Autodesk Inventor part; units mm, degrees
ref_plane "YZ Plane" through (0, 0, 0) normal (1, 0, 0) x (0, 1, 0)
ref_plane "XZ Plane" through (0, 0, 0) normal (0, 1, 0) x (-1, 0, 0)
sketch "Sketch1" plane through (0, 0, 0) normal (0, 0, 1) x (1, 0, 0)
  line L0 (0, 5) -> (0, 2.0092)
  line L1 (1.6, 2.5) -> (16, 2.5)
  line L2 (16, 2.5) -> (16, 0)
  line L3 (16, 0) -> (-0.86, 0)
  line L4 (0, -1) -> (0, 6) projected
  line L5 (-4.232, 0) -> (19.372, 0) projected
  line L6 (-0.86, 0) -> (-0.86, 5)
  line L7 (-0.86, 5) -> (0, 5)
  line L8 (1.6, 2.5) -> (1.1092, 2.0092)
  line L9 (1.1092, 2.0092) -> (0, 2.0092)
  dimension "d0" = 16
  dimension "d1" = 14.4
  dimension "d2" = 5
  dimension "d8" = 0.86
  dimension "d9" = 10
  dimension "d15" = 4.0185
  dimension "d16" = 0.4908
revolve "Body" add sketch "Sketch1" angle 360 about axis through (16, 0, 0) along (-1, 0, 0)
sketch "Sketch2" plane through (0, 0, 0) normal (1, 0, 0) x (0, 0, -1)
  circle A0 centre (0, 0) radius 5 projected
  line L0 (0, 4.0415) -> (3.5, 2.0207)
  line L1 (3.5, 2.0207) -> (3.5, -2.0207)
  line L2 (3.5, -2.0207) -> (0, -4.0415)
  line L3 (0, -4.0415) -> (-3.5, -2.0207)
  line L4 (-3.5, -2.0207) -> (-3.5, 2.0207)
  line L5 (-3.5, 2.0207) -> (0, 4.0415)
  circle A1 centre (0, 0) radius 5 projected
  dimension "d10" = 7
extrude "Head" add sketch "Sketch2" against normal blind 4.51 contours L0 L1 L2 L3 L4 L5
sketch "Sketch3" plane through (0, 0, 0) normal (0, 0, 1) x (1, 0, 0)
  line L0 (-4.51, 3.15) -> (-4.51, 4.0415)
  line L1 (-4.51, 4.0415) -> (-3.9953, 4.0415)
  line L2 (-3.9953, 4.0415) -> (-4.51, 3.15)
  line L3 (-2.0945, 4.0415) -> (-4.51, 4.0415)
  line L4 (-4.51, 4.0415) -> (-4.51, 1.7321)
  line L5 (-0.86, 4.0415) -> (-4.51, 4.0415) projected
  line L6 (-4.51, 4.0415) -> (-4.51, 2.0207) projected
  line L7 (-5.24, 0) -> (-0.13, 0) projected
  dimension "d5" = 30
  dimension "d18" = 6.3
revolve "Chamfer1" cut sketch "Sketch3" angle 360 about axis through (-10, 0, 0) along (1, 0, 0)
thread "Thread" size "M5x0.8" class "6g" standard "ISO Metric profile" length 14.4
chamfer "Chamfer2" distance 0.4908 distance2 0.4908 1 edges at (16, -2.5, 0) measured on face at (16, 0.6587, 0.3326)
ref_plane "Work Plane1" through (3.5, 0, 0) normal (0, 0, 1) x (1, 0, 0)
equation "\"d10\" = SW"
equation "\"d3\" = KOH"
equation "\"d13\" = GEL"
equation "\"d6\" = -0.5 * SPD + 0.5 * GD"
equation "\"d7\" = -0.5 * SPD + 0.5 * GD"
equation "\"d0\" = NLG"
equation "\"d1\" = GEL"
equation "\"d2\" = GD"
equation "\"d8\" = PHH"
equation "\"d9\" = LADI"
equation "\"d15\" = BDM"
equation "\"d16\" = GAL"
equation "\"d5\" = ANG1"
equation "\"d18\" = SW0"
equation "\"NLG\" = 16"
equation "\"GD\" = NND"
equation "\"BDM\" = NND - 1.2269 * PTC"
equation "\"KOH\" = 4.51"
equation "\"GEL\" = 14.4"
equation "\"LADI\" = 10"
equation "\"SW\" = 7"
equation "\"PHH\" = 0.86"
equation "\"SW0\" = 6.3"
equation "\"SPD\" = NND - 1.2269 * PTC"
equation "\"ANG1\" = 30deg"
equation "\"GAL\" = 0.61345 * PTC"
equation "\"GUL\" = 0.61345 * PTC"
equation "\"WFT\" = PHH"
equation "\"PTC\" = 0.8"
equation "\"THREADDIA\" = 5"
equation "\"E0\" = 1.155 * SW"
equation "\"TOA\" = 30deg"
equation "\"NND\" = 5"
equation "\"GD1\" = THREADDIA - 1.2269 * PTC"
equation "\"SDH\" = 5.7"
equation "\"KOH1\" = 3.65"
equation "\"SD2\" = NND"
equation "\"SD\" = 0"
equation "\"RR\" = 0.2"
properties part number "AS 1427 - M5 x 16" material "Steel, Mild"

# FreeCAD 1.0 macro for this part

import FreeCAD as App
import Part
import Sketcher

V = App.Vector
Q = App.Units.Quantity


def edges_at(feature, points):
    """Names of the edges that pass closest to the given points."""
    edges = feature.Shape.Edges
    near = lambda p: min(range(len(edges)), key=lambda i: edges[i].distToShape(Part.Vertex(*p))[0])
    return sorted({f"Edge{near(p) + 1}" for p in points})


def add_polygon(sketch, points):
    """Adds a closed chain of lines whose ends are joined by coincident constraints."""
    first, n = sketch.GeometryCount, len(points)
    for a, b in zip(points, points[1:] + points[:1]):
        sketch.addGeometry(Part.LineSegment(App.Vector(*a, 0), App.Vector(*b, 0)), False)
    for i in range(n):
        sketch.addConstraint(Sketcher.Constraint("Coincident", first + i, 2, first + (i + 1) % n, 1))

doc = App.newDocument("Part")
body = doc.addObject("PartDesign::Body", "Body")

sketch1 = body.newObject("Sketcher::SketchObject", "Sketch")
sketch1.AttachmentSupport = (doc.getObject("XY_Plane"), [""])
sketch1.MapMode = "FlatFace"
add_polygon(sketch1, [(0, 2), (0, 5), (-0.9, 5), (-0.9, 0), (16, 0), (16, 2.5), (1.6, 2.5), (1.1, 2)])
sketch1.addConstraint([
    Sketcher.Constraint("Vertical", 0),
    Sketcher.Constraint("Horizontal", 1),
    Sketcher.Constraint("Vertical", 2),
    Sketcher.Constraint("Horizontal", 3),
    Sketcher.Constraint("Vertical", 4),
    Sketcher.Constraint("Horizontal", 5),
    Sketcher.Constraint("Horizontal", 7),
    Sketcher.Constraint("PointOnObject", 0, 2, -2),
    Sketcher.Constraint("PointOnObject", 2, 2, -1),
    Sketcher.Constraint("DistanceY", 2, 2, 2, 1, 5.0),
    Sketcher.Constraint("DistanceX", 5, 2, 5, 1, 14.4),
    Sketcher.Constraint("DistanceX", -1, 1, 3, 2, 16.0),
    Sketcher.Constraint("DistanceX", 1, 2, 1, 1, 0.86),
    Sketcher.Constraint("Angle", 6, Q("-135 deg")),
    Sketcher.Constraint("DistanceY", 4, 1, 4, 2, 2.5),
    Sketcher.Constraint("DistanceX", 6, 2, 5, 2, 0.4908),
])
revolution = body.newObject("PartDesign::Revolution", "Revolution")
revolution.Profile = sketch1
revolution.ReferenceAxis = (sketch1, ["H_Axis"])
revolution.Angle = 360

sketch2 = body.newObject("Sketcher::SketchObject", "Sketch001")
sketch2.AttachmentSupport = (doc.getObject("YZ_Plane"), [""])
sketch2.MapMode = "FlatFace"
add_polygon(sketch2, [(2, -3.5), (4, 0), (2, 3.5), (-2, 3.5), (-4, 0), (-2, -3.5)])
sketch2.addConstraint([
    Sketcher.Constraint("Horizontal", 2),
    Sketcher.Constraint("Horizontal", 5),
    Sketcher.Constraint("Symmetric", 0, 2, 3, 2, -1, 1),
    Sketcher.Constraint("Symmetric", 1, 2, 4, 2, -1, 1),
    Sketcher.Constraint("PointOnObject", 0, 2, -1),
    Sketcher.Constraint("Parallel", 0, 3),
    Sketcher.Constraint("Vertical", 2, 2, 4, 2),
    Sketcher.Constraint("DistanceY", 4, 2, 2, 2, 7.0),
    Sketcher.Constraint("Angle", 0, Q("59.999 deg")),
    Sketcher.Constraint("DistanceX", 2, 2, 2, 1, 4.0414),
])
pad1 = body.newObject("PartDesign::Pad", "Pad")
pad1.Profile = sketch2
pad1.Length = 4.51
pad1.Reversed = True

sketch3 = body.newObject("Sketcher::SketchObject", "Sketch002")
sketch3.AttachmentSupport = (doc.getObject("XY_Plane"), [""])
sketch3.MapMode = "FlatFace"
add_polygon(sketch3, [(-4.5, 4), (-4.5, 3.1), (-4, 4)])
sketch3.addConstraint([
    Sketcher.Constraint("Vertical", 0),
    Sketcher.Constraint("Horizontal", 2),
    Sketcher.Constraint("Angle", 1, Q("60.0004 deg")),
    Sketcher.Constraint("DistanceX", 0, 2, -1, 1, 4.51),
    Sketcher.Constraint("DistanceY", -1, 1, 0, 2, 3.15),
    Sketcher.Constraint("DistanceX", 2, 2, 2, 1, 0.5147),
])
groove = body.newObject("PartDesign::Groove", "Groove")
groove.Profile = sketch3
groove.ReferenceAxis = (sketch3, ["H_Axis"])
groove.Angle = 360
doc.recompute()

chamfer = body.newObject("PartDesign::Chamfer", "Chamfer")
chamfer.Base = (groove, edges_at(groove, [(16, -2.5, 0)]))
chamfer.ChamferType = "Two distances"
chamfer.Size = 0.4908
chamfer.Size2 = 0.4908

doc.recompute()
